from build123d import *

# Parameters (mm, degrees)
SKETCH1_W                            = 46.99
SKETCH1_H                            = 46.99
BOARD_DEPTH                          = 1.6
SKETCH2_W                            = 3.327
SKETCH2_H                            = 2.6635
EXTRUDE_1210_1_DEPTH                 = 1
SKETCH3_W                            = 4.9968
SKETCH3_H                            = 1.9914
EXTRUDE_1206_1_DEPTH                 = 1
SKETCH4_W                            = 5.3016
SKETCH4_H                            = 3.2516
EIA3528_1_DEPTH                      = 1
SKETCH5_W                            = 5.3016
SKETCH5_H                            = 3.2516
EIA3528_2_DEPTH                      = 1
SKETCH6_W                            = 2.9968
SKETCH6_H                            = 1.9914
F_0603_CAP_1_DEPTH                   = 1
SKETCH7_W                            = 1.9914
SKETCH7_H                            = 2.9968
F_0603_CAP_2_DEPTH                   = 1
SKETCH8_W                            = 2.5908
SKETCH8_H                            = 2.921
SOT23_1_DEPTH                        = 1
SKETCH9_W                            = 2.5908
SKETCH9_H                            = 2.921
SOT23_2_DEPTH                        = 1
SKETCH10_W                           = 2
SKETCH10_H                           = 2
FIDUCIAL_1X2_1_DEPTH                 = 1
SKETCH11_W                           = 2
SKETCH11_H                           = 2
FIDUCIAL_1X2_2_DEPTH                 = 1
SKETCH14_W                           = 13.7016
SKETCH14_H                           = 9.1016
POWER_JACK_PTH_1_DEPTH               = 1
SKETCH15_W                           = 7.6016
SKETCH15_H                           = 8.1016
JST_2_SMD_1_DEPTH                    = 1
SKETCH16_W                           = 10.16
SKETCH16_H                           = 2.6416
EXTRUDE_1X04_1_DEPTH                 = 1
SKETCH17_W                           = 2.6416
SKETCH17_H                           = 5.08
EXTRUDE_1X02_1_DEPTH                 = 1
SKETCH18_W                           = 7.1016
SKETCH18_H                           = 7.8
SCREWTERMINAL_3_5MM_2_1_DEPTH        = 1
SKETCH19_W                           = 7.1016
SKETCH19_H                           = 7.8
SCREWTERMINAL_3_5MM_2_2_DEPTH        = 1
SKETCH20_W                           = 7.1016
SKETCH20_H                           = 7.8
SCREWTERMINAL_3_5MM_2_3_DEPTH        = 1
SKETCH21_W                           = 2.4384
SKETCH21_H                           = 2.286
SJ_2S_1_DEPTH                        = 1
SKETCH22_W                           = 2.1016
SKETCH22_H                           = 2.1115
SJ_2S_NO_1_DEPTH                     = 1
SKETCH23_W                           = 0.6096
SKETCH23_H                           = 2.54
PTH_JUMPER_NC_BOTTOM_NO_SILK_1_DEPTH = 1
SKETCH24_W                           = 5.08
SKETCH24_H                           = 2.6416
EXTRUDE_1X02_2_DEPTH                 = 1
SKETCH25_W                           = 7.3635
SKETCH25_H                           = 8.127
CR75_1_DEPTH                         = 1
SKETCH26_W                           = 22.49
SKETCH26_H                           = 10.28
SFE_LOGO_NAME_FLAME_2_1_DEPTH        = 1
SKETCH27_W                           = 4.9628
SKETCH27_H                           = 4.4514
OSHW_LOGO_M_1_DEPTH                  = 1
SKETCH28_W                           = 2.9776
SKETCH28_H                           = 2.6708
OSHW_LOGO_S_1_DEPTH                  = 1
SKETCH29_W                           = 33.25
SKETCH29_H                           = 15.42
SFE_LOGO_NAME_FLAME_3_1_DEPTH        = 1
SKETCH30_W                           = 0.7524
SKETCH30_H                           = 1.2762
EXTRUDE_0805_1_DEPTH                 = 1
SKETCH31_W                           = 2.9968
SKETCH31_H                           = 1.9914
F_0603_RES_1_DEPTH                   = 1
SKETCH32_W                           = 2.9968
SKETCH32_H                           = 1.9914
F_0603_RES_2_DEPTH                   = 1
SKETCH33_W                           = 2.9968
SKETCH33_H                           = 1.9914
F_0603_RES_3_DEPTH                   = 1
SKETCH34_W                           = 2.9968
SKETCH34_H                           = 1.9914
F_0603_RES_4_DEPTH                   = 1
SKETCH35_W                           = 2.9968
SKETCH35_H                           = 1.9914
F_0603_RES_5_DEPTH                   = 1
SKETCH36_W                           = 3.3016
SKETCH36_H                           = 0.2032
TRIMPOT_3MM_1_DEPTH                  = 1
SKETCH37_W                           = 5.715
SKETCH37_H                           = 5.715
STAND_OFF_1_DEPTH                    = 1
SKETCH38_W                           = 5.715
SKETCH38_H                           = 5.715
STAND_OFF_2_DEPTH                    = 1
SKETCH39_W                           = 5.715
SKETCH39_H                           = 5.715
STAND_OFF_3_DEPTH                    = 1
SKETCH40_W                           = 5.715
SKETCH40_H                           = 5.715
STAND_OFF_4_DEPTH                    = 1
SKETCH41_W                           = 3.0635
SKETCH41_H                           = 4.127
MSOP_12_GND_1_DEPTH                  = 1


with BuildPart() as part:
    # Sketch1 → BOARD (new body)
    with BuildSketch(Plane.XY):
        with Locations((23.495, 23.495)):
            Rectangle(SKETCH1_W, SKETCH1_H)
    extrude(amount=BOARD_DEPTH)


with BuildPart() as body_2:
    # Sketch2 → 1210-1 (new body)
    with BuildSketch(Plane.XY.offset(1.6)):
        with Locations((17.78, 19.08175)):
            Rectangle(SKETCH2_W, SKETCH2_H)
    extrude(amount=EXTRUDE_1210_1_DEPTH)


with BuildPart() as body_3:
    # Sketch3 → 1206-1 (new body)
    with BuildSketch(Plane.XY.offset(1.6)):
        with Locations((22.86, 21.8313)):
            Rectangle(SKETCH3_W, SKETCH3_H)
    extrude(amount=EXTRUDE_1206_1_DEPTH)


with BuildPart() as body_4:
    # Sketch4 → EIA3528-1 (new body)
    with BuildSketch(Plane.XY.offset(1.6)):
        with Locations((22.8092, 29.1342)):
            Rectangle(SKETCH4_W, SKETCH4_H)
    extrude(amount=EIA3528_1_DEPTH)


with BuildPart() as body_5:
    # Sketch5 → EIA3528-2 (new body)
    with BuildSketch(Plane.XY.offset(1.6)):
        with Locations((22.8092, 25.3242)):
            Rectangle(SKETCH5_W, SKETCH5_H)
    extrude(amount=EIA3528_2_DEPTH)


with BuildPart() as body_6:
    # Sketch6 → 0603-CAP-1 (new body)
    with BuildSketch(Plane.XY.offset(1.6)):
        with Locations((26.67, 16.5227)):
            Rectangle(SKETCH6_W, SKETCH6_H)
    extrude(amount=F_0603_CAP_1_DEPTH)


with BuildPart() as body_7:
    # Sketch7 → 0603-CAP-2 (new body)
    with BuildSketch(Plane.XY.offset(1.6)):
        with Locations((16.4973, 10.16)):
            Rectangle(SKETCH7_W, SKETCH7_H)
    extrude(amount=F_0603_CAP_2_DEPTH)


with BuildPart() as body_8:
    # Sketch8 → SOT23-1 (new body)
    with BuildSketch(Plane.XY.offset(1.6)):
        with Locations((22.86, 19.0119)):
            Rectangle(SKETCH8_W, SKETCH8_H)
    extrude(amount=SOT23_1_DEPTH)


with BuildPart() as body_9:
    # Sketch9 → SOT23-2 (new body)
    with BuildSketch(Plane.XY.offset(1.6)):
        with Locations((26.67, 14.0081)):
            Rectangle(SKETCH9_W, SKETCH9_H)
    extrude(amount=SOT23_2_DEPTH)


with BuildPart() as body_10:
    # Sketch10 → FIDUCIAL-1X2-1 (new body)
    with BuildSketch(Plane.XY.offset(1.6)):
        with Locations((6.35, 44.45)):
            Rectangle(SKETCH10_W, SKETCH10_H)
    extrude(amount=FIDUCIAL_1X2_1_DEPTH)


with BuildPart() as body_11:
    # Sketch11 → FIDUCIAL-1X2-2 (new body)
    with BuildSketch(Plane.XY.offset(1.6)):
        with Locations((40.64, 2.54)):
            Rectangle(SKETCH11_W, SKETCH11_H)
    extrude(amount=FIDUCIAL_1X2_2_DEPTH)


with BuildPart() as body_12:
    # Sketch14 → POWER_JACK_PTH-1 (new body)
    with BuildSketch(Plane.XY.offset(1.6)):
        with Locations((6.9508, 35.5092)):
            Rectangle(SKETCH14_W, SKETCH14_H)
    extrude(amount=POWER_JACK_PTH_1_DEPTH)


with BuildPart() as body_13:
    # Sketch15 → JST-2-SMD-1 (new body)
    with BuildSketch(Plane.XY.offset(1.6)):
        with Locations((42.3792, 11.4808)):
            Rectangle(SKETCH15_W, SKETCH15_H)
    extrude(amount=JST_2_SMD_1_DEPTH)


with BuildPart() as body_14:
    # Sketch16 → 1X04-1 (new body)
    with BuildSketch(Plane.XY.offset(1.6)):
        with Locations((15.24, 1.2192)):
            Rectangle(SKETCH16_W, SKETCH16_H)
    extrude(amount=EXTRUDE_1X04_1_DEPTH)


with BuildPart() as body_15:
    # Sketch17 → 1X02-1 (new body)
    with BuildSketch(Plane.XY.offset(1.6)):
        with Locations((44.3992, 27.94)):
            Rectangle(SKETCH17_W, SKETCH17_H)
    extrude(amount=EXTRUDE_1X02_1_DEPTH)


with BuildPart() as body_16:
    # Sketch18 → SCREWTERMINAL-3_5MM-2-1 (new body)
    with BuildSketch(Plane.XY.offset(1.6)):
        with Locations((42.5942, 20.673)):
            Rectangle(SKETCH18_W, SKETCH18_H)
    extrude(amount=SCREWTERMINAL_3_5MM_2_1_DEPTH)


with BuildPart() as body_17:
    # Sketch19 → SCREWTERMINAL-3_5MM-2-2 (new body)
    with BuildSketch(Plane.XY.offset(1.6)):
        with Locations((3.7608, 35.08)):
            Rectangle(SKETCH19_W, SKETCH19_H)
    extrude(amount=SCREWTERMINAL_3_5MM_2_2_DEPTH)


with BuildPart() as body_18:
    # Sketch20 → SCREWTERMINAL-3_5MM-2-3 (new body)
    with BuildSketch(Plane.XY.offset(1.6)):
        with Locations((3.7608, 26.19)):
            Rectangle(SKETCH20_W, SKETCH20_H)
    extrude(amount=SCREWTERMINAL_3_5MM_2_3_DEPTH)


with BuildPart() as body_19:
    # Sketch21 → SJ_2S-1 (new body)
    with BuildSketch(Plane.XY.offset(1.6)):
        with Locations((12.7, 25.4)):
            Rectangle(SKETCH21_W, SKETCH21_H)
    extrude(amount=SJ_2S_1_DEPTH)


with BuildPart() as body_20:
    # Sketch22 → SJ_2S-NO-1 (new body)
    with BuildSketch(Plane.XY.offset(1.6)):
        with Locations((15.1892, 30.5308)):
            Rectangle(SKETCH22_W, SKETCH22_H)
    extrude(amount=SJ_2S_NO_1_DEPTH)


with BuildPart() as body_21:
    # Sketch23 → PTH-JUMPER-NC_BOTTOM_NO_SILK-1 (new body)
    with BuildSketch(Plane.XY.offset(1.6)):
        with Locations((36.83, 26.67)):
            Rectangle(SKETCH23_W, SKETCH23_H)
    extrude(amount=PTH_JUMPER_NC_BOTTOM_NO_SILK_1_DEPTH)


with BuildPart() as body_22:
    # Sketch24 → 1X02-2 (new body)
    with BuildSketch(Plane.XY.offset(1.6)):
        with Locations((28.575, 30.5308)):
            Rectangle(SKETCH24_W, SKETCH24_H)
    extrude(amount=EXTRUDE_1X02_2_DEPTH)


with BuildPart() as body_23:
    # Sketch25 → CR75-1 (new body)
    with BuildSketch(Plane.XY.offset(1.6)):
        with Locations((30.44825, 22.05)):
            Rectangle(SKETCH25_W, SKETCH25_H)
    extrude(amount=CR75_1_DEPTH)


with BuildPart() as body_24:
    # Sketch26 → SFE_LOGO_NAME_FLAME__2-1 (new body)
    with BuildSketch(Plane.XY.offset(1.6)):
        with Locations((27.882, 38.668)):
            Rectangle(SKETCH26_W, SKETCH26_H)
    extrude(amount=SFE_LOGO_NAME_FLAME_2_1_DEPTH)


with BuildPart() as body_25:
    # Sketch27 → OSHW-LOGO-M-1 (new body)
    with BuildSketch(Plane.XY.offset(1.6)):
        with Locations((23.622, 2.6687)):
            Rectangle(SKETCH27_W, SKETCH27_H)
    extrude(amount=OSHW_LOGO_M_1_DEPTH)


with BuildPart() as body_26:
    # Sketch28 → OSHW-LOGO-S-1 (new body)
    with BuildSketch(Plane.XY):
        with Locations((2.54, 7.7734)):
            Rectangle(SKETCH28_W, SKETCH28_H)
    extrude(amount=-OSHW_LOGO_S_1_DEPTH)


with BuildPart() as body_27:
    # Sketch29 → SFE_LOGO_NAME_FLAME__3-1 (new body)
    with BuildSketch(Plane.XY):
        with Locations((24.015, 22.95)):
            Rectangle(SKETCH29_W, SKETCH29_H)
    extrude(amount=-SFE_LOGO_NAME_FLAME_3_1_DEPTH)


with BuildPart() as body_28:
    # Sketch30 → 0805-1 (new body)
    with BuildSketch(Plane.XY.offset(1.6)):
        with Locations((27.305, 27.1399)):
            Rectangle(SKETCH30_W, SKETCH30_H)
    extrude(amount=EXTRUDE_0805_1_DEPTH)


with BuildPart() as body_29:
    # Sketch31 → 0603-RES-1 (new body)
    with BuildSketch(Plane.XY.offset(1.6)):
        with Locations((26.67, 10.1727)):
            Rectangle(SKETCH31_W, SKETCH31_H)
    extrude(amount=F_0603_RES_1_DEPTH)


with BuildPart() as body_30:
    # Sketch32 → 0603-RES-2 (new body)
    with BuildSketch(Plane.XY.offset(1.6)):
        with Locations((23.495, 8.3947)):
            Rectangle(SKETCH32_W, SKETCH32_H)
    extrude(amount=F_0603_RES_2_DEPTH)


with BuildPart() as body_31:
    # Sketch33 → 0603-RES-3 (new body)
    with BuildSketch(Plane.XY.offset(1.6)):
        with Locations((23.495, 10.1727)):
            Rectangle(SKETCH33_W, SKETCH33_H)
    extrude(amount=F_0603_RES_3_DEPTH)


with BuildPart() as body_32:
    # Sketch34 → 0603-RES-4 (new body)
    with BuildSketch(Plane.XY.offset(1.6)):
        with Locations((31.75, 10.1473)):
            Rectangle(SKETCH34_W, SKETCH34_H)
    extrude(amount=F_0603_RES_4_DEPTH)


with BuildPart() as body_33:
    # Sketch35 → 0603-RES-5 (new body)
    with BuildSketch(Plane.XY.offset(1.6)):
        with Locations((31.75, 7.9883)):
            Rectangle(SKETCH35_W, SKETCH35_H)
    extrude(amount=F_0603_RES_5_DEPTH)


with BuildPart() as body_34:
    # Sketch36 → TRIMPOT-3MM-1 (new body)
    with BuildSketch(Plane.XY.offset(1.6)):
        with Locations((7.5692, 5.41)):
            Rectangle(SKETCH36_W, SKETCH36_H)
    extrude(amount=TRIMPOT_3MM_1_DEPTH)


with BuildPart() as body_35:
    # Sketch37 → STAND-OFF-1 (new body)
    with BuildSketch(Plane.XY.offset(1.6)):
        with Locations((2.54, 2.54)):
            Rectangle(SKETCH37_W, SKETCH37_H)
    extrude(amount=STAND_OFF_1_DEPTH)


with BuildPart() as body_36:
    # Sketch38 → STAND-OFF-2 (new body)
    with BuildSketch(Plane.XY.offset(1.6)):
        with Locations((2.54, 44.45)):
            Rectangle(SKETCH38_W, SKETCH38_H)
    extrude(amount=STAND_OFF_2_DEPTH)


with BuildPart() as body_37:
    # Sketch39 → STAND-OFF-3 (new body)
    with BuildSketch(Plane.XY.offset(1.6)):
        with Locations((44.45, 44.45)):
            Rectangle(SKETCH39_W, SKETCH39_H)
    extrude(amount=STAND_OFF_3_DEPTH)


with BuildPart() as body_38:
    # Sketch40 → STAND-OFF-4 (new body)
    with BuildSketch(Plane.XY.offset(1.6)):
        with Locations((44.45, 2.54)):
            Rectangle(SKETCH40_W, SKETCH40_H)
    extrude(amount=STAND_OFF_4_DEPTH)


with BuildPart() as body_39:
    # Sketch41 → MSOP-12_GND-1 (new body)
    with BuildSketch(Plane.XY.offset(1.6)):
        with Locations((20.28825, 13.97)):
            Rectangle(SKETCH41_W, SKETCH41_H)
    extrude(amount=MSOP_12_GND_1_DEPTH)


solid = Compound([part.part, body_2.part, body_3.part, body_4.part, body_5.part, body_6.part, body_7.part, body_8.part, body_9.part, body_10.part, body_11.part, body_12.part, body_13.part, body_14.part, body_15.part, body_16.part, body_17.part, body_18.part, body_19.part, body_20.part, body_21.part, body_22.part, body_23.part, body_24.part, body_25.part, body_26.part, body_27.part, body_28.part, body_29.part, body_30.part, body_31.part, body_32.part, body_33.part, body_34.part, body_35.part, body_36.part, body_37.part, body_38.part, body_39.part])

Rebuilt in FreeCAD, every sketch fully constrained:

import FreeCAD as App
import Part
import Sketcher

V = App.Vector
Q = App.Units.Quantity


def add_polygon(sketch, points):
    """Adds a closed chain of lines whose ends are joined by coincident constraints."""
    first, n = sketch.GeometryCount, len(points)
    for a, b in zip(points, points[1:] + points[:1]):
        sketch.addGeometry(Part.LineSegment(App.Vector(*a, 0), App.Vector(*b, 0)), False)
    for i in range(n):
        sketch.addConstraint(Sketcher.Constraint("Coincident", first + i, 2, first + (i + 1) % n, 1))

doc = App.newDocument("Part")
params = doc.addObject("Spreadsheet::Sheet", "Params")
for row, (alias, value) in enumerate([
    ("sketch1_width", "1.85 in"),
    ("pad1_length", "1.6 mm"),
    ("pad2_length", "1 mm"),
    ("pad3_length", "1 mm"),
    ("pad4_length", "1 mm"),
    ("pad5_length", "1 mm"),
    ("pad6_length", "1 mm"),
    ("pad7_length", "1 mm"),
    ("sketch8_width", "0.102 in"),
    ("sketch8_height", "0.115 in"),
    ("pad8_length", "1 mm"),
    ("sketch9_width", "0.102 in"),
    ("sketch9_height", "0.115 in"),
    ("pad9_length", "1 mm"),
    ("pad10_length", "1 mm"),
    ("pad11_length", "1 mm"),
    ("pad12_length", "1 mm"),
    ("pad13_length", "1 mm"),
    ("sketch14_width", "0.4 in"),
    ("sketch14_height", "0.104 in"),
    ("pad14_length", "1 mm"),
    ("sketch15_height", "0.2 in"),
    ("sketch15_width", "0.104 in"),
    ("pad15_length", "1 mm"),
    ("pad16_length", "1 mm"),
    ("pad17_length", "1 mm"),
    ("pad18_length", "1 mm"),
    ("sketch19_height", "0.09 in"),
    ("sketch19_width", "0.096 in"),
    ("pad19_length", "1 mm"),
    ("pad20_length", "1 mm"),
    ("sketch21_height", "0.1 in"),
    ("sketch21_width", "0.024 in"),
    ("pad21_length", "1 mm"),
    ("sketch22_width", "0.2 in"),
    ("sketch22_height", "0.104 in"),
    ("pad22_length", "1 mm"),
    ("pad23_length", "1 mm"),
    ("pad24_length", "1 mm"),
    ("pad25_length", "1 mm"),
    ("pad26_length", "1 mm"),
    ("pad27_length", "1 mm"),
    ("pad28_length", "1 mm"),
    ("pad29_length", "1 mm"),
    ("pad30_length", "1 mm"),
    ("pad31_length", "1 mm"),
    ("pad32_length", "1 mm"),
    ("pad33_length", "1 mm"),
    ("sketch34_height", "0.008 in"),
    ("pad34_length", "1 mm"),
    ("sketch35_width", "0.225 in"),
    ("pad35_length", "1 mm"),
    ("sketch36_width", "0.225 in"),
    ("pad36_length", "1 mm"),
    ("sketch37_width", "0.225 in"),
    ("pad37_length", "1 mm"),
    ("sketch38_width", "0.225 in"),
    ("pad38_length", "1 mm"),
    ("pad39_length", "1 mm"),
], start=1):
    params.set(f"A{row}", alias)
    params.set(f"B{row}", "=" + value)
    params.setAlias(f"B{row}", alias)

body = doc.addObject("PartDesign::Body", "Body")

sketch1 = doc.addObject("Sketcher::SketchObject", "Sketch")
body.addObject(sketch1)
sketch1.AttachmentSupport = (doc.XY_Plane, [""])
sketch1.MapMode = "FlatFace"
add_polygon(sketch1, [(0, 46.99), (0, 0), (46.99, 0), (46.99, 46.99)])
sketch1.addConstraint([
    Sketcher.Constraint("Vertical", 0),
    Sketcher.Constraint("Horizontal", 1),
    Sketcher.Constraint("Vertical", 2),
    Sketcher.Constraint("Horizontal", 3),
    Sketcher.Constraint("Coincident", 0, 2, -1, 1),
    Sketcher.Constraint("Equal", 3, 0),
    Sketcher.Constraint("DistanceX", 1, 1, 1, 2, Q("1.85 in")),
])
sketch1.setExpression("Constraints[10]", "Params.sketch1_width")
pad1 = doc.addObject("PartDesign::Pad", "Pad")
body.addObject(pad1)
pad1.Profile = sketch1
pad1.setExpression("Length", "Params.pad1_length")
body2 = doc.addObject("PartDesign::Body", "Body001")

sketch2 = doc.addObject("Sketcher::SketchObject", "Sketch001")
body2.addObject(sketch2)
sketch2.AttachmentSupport = (doc.getObject("XY_Plane001"), [""])
sketch2.MapMode = "FlatFace"
sketch2.AttachmentOffset = App.Placement(V(0, 0, 1.6), App.Rotation())
add_polygon(sketch2, [(16.1165, 20.4135), (16.1165, 17.75), (19.4435, 17.75), (19.4435, 20.4135)])
sketch2.addConstraint([
    Sketcher.Constraint("Vertical", 0),
    Sketcher.Constraint("Horizontal", 1),
    Sketcher.Constraint("Vertical", 2),
    Sketcher.Constraint("Horizontal", 3),
    Sketcher.Constraint("DistanceX", 1, 1, 1, 2, Q("3.327 mm")),
    Sketcher.Constraint("DistanceY", 0, 2, 0, 1, Q("2.6635 mm")),
    Sketcher.Constraint("DistanceX", -1, 1, 0, 2, Q("16.1165 mm")),
    Sketcher.Constraint("DistanceY", -1, 1, 0, 2, Q("17.75 mm")),
])
pad2 = doc.addObject("PartDesign::Pad", "Pad001")
body2.addObject(pad2)
pad2.Profile = sketch2
pad2.setExpression("Length", "Params.pad2_length")
body3 = doc.addObject("PartDesign::Body", "Body002")

sketch3 = doc.addObject("Sketcher::SketchObject", "Sketch002")
body3.addObject(sketch3)
sketch3.AttachmentSupport = (doc.getObject("XY_Plane002"), [""])
sketch3.MapMode = "FlatFace"
sketch3.AttachmentOffset = App.Placement(V(0, 0, 1.6), App.Rotation())
add_polygon(sketch3, [(20.3616, 22.827), (20.3616, 20.8356), (25.3584, 20.8356), (25.3584, 22.827)])
sketch3.addConstraint([
    Sketcher.Constraint("Vertical", 0),
    Sketcher.Constraint("Horizontal", 1),
    Sketcher.Constraint("Vertical", 2),
    Sketcher.Constraint("Horizontal", 3),
    Sketcher.Constraint("DistanceX", 1, 1, 1, 2, Q("4.9968 mm")),
    Sketcher.Constraint("DistanceY", 0, 2, 0, 1, Q("1.9914 mm")),
    Sketcher.Constraint("DistanceX", -1, 1, 0, 2, Q("20.3616 mm")),
    Sketcher.Constraint("DistanceY", -1, 1, 0, 2, Q("20.8356 mm")),
])
pad3 = doc.addObject("PartDesign::Pad", "Pad002")
body3.addObject(pad3)
pad3.Profile = sketch3
pad3.setExpression("Length", "Params.pad3_length")
body4 = doc.addObject("PartDesign::Body", "Body003")

sketch4 = doc.addObject("Sketcher::SketchObject", "Sketch003")
body4.addObject(sketch4)
sketch4.AttachmentSupport = (doc.getObject("XY_Plane003"), [""])
sketch4.MapMode = "FlatFace"
sketch4.AttachmentOffset = App.Placement(V(0, 0, 1.6), App.Rotation())
add_polygon(sketch4, [(20.1584, 30.76), (20.1584, 27.5084), (25.46, 27.5084), (25.46, 30.76)])
sketch4.addConstraint([
    Sketcher.Constraint("Vertical", 0),
    Sketcher.Constraint("Horizontal", 1),
    Sketcher.Constraint("Vertical", 2),
    Sketcher.Constraint("Horizontal", 3),
    Sketcher.Constraint("DistanceX", 1, 1, 1, 2, Q("5.3016 mm")),
    Sketcher.Constraint("DistanceY", 0, 2, 0, 1, Q("3.2516 mm")),
    Sketcher.Constraint("DistanceX", -1, 1, 0, 2, Q("20.1584 mm")),
    Sketcher.Constraint("DistanceY", -1, 1, 0, 2, Q("27.5084 mm")),
])
pad4 = doc.addObject("PartDesign::Pad", "Pad003")
body4.addObject(pad4)
pad4.Profile = sketch4
pad4.setExpression("Length", "Params.pad4_length")
body5 = doc.addObject("PartDesign::Body", "Body004")

sketch5 = doc.addObject("Sketcher::SketchObject", "Sketch004")
body5.addObject(sketch5)
sketch5.AttachmentSupport = (doc.getObject("XY_Plane004"), [""])
sketch5.MapMode = "FlatFace"
sketch5.AttachmentOffset = App.Placement(V(0, 0, 1.6), App.Rotation())
add_polygon(sketch5, [(20.1584, 26.95), (20.1584, 23.6984), (25.46, 23.6984), (25.46, 26.95)])
sketch5.addConstraint([
    Sketcher.Constraint("Vertical", 0),
    Sketcher.Constraint("Horizontal", 1),
    Sketcher.Constraint("Vertical", 2),
    Sketcher.Constraint("Horizontal", 3),
    Sketcher.Constraint("DistanceX", 1, 1, 1, 2, Q("5.3016 mm")),
    Sketcher.Constraint("DistanceY", 0, 2, 0, 1, Q("3.2516 mm")),
    Sketcher.Constraint("DistanceX", -1, 1, 0, 2, Q("20.1584 mm")),
    Sketcher.Constraint("DistanceY", -1, 1, 0, 2, Q("23.6984 mm")),
])
pad5 = doc.addObject("PartDesign::Pad", "Pad004")
body5.addObject(pad5)
pad5.Profile = sketch5
pad5.setExpression("Length", "Params.pad5_length")
body6 = doc.addObject("PartDesign::Body", "Body005")

sketch6 = doc.addObject("Sketcher::SketchObject", "Sketch005")
body6.addObject(sketch6)
sketch6.AttachmentSupport = (doc.getObject("XY_Plane005"), [""])
sketch6.MapMode = "FlatFace"
sketch6.AttachmentOffset = App.Placement(V(0, 0, 1.6), App.Rotation())
add_polygon(sketch6, [(25.1716, 17.5184), (25.1716, 15.527), (28.1684, 15.527), (28.1684, 17.5184)])
sketch6.addConstraint([
    Sketcher.Constraint("Vertical", 0),
    Sketcher.Constraint("Horizontal", 1),
    Sketcher.Constraint("Vertical", 2),
    Sketcher.Constraint("Horizontal", 3),
    Sketcher.Constraint("DistanceX", 1, 1, 1, 2, Q("2.9968 mm")),
    Sketcher.Constraint("DistanceY", 0, 2, 0, 1, Q("1.9914 mm")),
    Sketcher.Constraint("DistanceX", -1, 1, 0, 2, Q("25.1716 mm")),
    Sketcher.Constraint("DistanceY", -1, 1, 0, 2, Q("15.527 mm")),
])
pad6 = doc.addObject("PartDesign::Pad", "Pad005")
body6.addObject(pad6)
pad6.Profile = sketch6
pad6.setExpression("Length", "Params.pad6_length")
body7 = doc.addObject("PartDesign::Body", "Body006")

sketch7 = doc.addObject("Sketcher::SketchObject", "Sketch006")
body7.addObject(sketch7)
sketch7.AttachmentSupport = (doc.getObject("XY_Plane006"), [""])
sketch7.MapMode = "FlatFace"
sketch7.AttachmentOffset = App.Placement(V(0, 0, 1.6), App.Rotation())
add_polygon(sketch7, [(15.5016, 11.6584), (15.5016, 8.6616), (17.493, 8.6616), (17.493, 11.6584)])
sketch7.addConstraint([
    Sketcher.Constraint("Vertical", 0),
    Sketcher.Constraint("Horizontal", 1),
    Sketcher.Constraint("Vertical", 2),
    Sketcher.Constraint("Horizontal", 3),
    Sketcher.Constraint("DistanceX", 1, 1, 1, 2, Q("1.9914 mm")),
    Sketcher.Constraint("DistanceY", 0, 2, 0, 1, Q("2.9968 mm")),
    Sketcher.Constraint("DistanceX", -1, 1, 0, 2, Q("15.5016 mm")),
    Sketcher.Constraint("DistanceY", -1, 1, 0, 2, Q("8.6616 mm")),
])
pad7 = doc.addObject("PartDesign::Pad", "Pad006")
body7.addObject(pad7)
pad7.Profile = sketch7
pad7.setExpression("Length", "Params.pad7_length")
body8 = doc.addObject("PartDesign::Body", "Body007")

sketch8 = doc.addObject("Sketcher::SketchObject", "Sketch007")
body8.addObject(sketch8)
sketch8.AttachmentSupport = (doc.getObject("XY_Plane007"), [""])
sketch8.MapMode = "FlatFace"
sketch8.AttachmentOffset = App.Placement(V(0, 0, 1.6), App.Rotation())
add_polygon(sketch8, [(21.5646, 20.4724), (21.5646, 17.5514), (24.1554, 17.5514), (24.1554, 20.4724)])
sketch8.addConstraint([
    Sketcher.Constraint("Vertical", 0),
    Sketcher.Constraint("Horizontal", 1),
    Sketcher.Constraint("Vertical", 2),
    Sketcher.Constraint("Horizontal", 3),
    Sketcher.Constraint("DistanceX", 1, 1, 1, 2, Q("0.102 in")),
    Sketcher.Constraint("DistanceY", 0, 2, 0, 1, Q("0.115 in")),
    Sketcher.Constraint("DistanceX", -1, 1, 0, 2, Q("0.849 in")),
    Sketcher.Constraint("DistanceY", -1, 1, 0, 2, Q("0.691 in")),
])
sketch8.setExpression("Constraints[8]", "Params.sketch8_width")
sketch8.setExpression("Constraints[9]", "Params.sketch8_height")
pad8 = doc.addObject("PartDesign::Pad", "Pad007")
body8.addObject(pad8)
pad8.Profile = sketch8
pad8.setExpression("Length", "Params.pad8_length")
body9 = doc.addObject("PartDesign::Body", "Body008")

sketch9 = doc.addObject("Sketcher::SketchObject", "Sketch008")
body9.addObject(sketch9)
sketch9.AttachmentSupport = (doc.getObject("XY_Plane008"), [""])
sketch9.MapMode = "FlatFace"
sketch9.AttachmentOffset = App.Placement(V(0, 0, 1.6), App.Rotation())
add_polygon(sketch9, [(25.3746, 15.4686), (25.3746, 12.5476), (27.9654, 12.5476), (27.9654, 15.4686)])
sketch9.addConstraint([
    Sketcher.Constraint("Vertical", 0),
    Sketcher.Constraint("Horizontal", 1),
    Sketcher.Constraint("Vertical", 2),
    Sketcher.Constraint("Horizontal", 3),
    Sketcher.Constraint("DistanceX", 1, 1, 1, 2, Q("0.102 in")),
    Sketcher.Constraint("DistanceY", 0, 2, 0, 1, Q("0.115 in")),
    Sketcher.Constraint("DistanceX", -1, 1, 0, 2, Q("0.999 in")),
    Sketcher.Constraint("DistanceY", -1, 1, 0, 2, Q("0.494 in")),
])
sketch9.setExpression("Constraints[8]", "Params.sketch9_width")
sketch9.setExpression("Constraints[9]", "Params.sketch9_height")
pad9 = doc.addObject("PartDesign::Pad", "Pad008")
body9.addObject(pad9)
pad9.Profile = sketch9
pad9.setExpression("Length", "Params.pad9_length")
body10 = doc.addObject("PartDesign::Body", "Body009")

sketch10 = doc.addObject("Sketcher::SketchObject", "Sketch009")
body10.addObject(sketch10)
sketch10.AttachmentSupport = (doc.getObject("XY_Plane009"), [""])
sketch10.MapMode = "FlatFace"
sketch10.AttachmentOffset = App.Placement(V(0, 0, 1.6), App.Rotation())
add_polygon(sketch10, [(5.35, 45.45), (5.35, 43.45), (7.35, 43.45), (7.35, 45.45)])
sketch10.addConstraint([
    Sketcher.Constraint("Vertical", 0),
    Sketcher.Constraint("Horizontal", 1),
    Sketcher.Constraint("Vertical", 2),
    Sketcher.Constraint("Horizontal", 3),
    Sketcher.Constraint("Equal", 3, 0),
    Sketcher.Constraint("DistanceX", 1, 1, 1, 2, Q("2 mm")),
    Sketcher.Constraint("DistanceX", -1, 1, 0, 2, Q("5.35 mm")),
    Sketcher.Constraint("DistanceY", -1, 1, 0, 2, Q("43.45 mm")),
])
pad10 = doc.addObject("PartDesign::Pad", "Pad009")
body10.addObject(pad10)
pad10.Profile = sketch10
pad10.setExpression("Length", "Params.pad10_length")
body11 = doc.addObject("PartDesign::Body", "Body010")

sketch11 = doc.addObject("Sketcher::SketchObject", "Sketch010")
body11.addObject(sketch11)
sketch11.AttachmentSupport = (doc.getObject("XY_Plane010"), [""])
sketch11.MapMode = "FlatFace"
sketch11.AttachmentOffset = App.Placement(V(0, 0, 1.6), App.Rotation())
add_polygon(sketch11, [(39.64, 3.54), (39.64, 1.54), (41.64, 1.54), (41.64, 3.54)])
sketch11.addConstraint([
    Sketcher.Constraint("Vertical", 0),
    Sketcher.Constraint("Horizontal", 1),
    Sketcher.Constraint("Vertical", 2),
    Sketcher.Constraint("Horizontal", 3),
    Sketcher.Constraint("Equal", 3, 0),
    Sketcher.Constraint("DistanceX", 1, 1, 1, 2, Q("2 mm")),
    Sketcher.Constraint("DistanceX", -1, 1, 0, 2, Q("39.64 mm")),
    Sketcher.Constraint("DistanceY", -1, 1, 0, 2, Q("1.54 mm")),
])
pad11 = doc.addObject("PartDesign::Pad", "Pad010")
body11.addObject(pad11)
pad11.Profile = sketch11
pad11.setExpression("Length", "Params.pad11_length")
body12 = doc.addObject("PartDesign::Body", "Body011")

sketch12 = doc.addObject("Sketcher::SketchObject", "Sketch011")
body12.addObject(sketch12)
sketch12.AttachmentSupport = (doc.getObject("XY_Plane011"), [""])
sketch12.MapMode = "FlatFace"
sketch12.AttachmentOffset = App.Placement(V(0, 0, 1.6), App.Rotation())
add_polygon(sketch12, [(0.1, 40.06), (0.1, 30.9584), (13.8016, 30.9584), (13.8016, 40.06)])
sketch12.addConstraint([
    Sketcher.Constraint("Vertical", 0),
    Sketcher.Constraint("Horizontal", 1),
    Sketcher.Constraint("Vertical", 2),
    Sketcher.Constraint("Horizontal", 3),
    Sketcher.Constraint("DistanceX", 1, 1, 1, 2, Q("13.7016 mm")),
    Sketcher.Constraint("DistanceY", 0, 2, 0, 1, Q("9.1016 mm")),
    Sketcher.Constraint("DistanceX", -1, 1, 0, 2, Q("0.1 mm")),
    Sketcher.Constraint("DistanceY", -1, 1, 0, 2, Q("30.9584 mm")),
])
pad12 = doc.addObject("PartDesign::Pad", "Pad011")
body12.addObject(pad12)
pad12.Profile = sketch12
pad12.setExpression("Length", "Params.pad12_length")
body13 = doc.addObject("PartDesign::Body", "Body012")

sketch13 = doc.addObject("Sketcher::SketchObject", "Sketch012")
body13.addObject(sketch13)
sketch13.AttachmentSupport = (doc.getObject("XY_Plane012"), [""])
sketch13.MapMode = "FlatFace"
sketch13.AttachmentOffset = App.Placement(V(0, 0, 1.6), App.Rotation())
add_polygon(sketch13, [(38.5784, 15.5316), (38.5784, 7.43), (46.18, 7.43), (46.18, 15.5316)])
sketch13.addConstraint([
    Sketcher.Constraint("Vertical", 0),
    Sketcher.Constraint("Horizontal", 1),
    Sketcher.Constraint("Vertical", 2),
    Sketcher.Constraint("Horizontal", 3),
    Sketcher.Constraint("DistanceX", 1, 1, 1, 2, Q("7.6016 mm")),
    Sketcher.Constraint("DistanceY", 0, 2, 0, 1, Q("8.1016 mm")),
    Sketcher.Constraint("DistanceX", -1, 1, 0, 2, Q("38.5784 mm")),
    Sketcher.Constraint("DistanceY", -1, 1, 0, 2, Q("7.43 mm")),
])
pad13 = doc.addObject("PartDesign::Pad", "Pad012")
body13.addObject(pad13)
pad13.Profile = sketch13
pad13.setExpression("Length", "Params.pad13_length")
body14 = doc.addObject("PartDesign::Body", "Body013")

sketch14 = doc.addObject("Sketcher::SketchObject", "Sketch013")
body14.addObject(sketch14)
sketch14.AttachmentSupport = (doc.getObject("XY_Plane013"), [""])
sketch14.MapMode = "FlatFace"
sketch14.AttachmentOffset = App.Placement(V(0, 0, 1.6), App.Rotation())
add_polygon(sketch14, [(10.16, 2.54), (10.16, -0.1016), (20.32, -0.1016), (20.32, 2.54)])
sketch14.addConstraint([
    Sketcher.Constraint("Vertical", 0),
    Sketcher.Constraint("Horizontal", 1),
    Sketcher.Constraint("Vertical", 2),
    Sketcher.Constraint("Horizontal", 3),
    Sketcher.Constraint("DistanceX", 1, 1, 1, 2, Q("0.4 in")),
    Sketcher.Constraint("DistanceX", -1, 1, 0, 2, Q("0.4 in")),
    Sketcher.Constraint("DistanceY", -1, 1, 2, 2, Q("0.1 in")),
    Sketcher.Constraint("DistanceY", 0, 2, 0, 1, Q("0.104 in")),
])
sketch14.setExpression("Constraints[8]", "Params.sketch14_width")
sketch14.setExpression("Constraints[11]", "Params.sketch14_height")
pad14 = doc.addObject("PartDesign::Pad", "Pad013")
body14.addObject(pad14)
pad14.Profile = sketch14
pad14.setExpression("Length", "Params.pad14_length")
body15 = doc.addObject("PartDesign::Body", "Body014")

sketch15 = doc.addObject("Sketcher::SketchObject", "Sketch014")
body15.addObject(sketch15)
sketch15.AttachmentSupport = (doc.getObject("XY_Plane014"), [""])
sketch15.MapMode = "FlatFace"
sketch15.AttachmentOffset = App.Placement(V(0, 0, 1.6), App.Rotation())
add_polygon(sketch15, [(43.0784, 30.48), (43.0784, 25.4), (45.72, 25.4), (45.72, 30.48)])
sketch15.addConstraint([
    Sketcher.Constraint("Vertical", 0),
    Sketcher.Constraint("Horizontal", 1),
    Sketcher.Constraint("Vertical", 2),
    Sketcher.Constraint("Horizontal", 3),
    Sketcher.Constraint("DistanceY", 0, 2, 0, 1, Q("0.2 in")),
    Sketcher.Constraint("DistanceY", -1, 1, 0, 2, Q("1 in")),
    Sketcher.Constraint("DistanceX", -1, 1, 1, 2, Q("1.8 in")),
    Sketcher.Constraint("DistanceX", 1, 1, 1, 2, Q("0.104 in")),
])
sketch15.setExpression("Constraints[8]", "Params.sketch15_height")
sketch15.setExpression("Constraints[11]", "Params.sketch15_width")
pad15 = doc.addObject("PartDesign::Pad", "Pad014")
body15.addObject(pad15)
pad15.Profile = sketch15
pad15.setExpression("Length", "Params.pad15_length")
body16 = doc.addObject("PartDesign::Body", "Body015")

sketch16 = doc.addObject("Sketcher::SketchObject", "Sketch015")
body16.addObject(sketch16)
sketch16.AttachmentSupport = (doc.getObject("XY_Plane015"), [""])
sketch16.MapMode = "FlatFace"
sketch16.AttachmentOffset = App.Placement(V(0, 0, 1.6), App.Rotation())
add_polygon(sketch16, [(39.0434, 24.573), (39.0434, 16.773), (46.145, 16.773), (46.145, 24.573)])
sketch16.addConstraint([
    Sketcher.Constraint("Vertical", 0),
    Sketcher.Constraint("Horizontal", 1),
    Sketcher.Constraint("Vertical", 2),
    Sketcher.Constraint("Horizontal", 3),
    Sketcher.Constraint("DistanceX", 1, 1, 1, 2, Q("7.1016 mm")),
    Sketcher.Constraint("DistanceY", 0, 2, 0, 1, Q("7.8 mm")),
    Sketcher.Constraint("DistanceX", -1, 1, 0, 2, Q("39.0434 mm")),
    Sketcher.Constraint("DistanceY", -1, 1, 0, 2, Q("16.773 mm")),
])
pad16 = doc.addObject("PartDesign::Pad", "Pad015")
body16.addObject(pad16)
pad16.Profile = sketch16
pad16.setExpression("Length", "Params.pad16_length")
body17 = doc.addObject("PartDesign::Body", "Body016")

sketch17 = doc.addObject("Sketcher::SketchObject", "Sketch016")
body17.addObject(sketch17)
sketch17.AttachmentSupport = (doc.getObject("XY_Plane016"), [""])
sketch17.MapMode = "FlatFace"
sketch17.AttachmentOffset = App.Placement(V(0, 0, 1.6), App.Rotation())
add_polygon(sketch17, [(0.21, 38.98), (0.21, 31.18), (7.3116, 31.18), (7.3116, 38.98)])
sketch17.addConstraint([
    Sketcher.Constraint("Vertical", 0),
    Sketcher.Constraint("Horizontal", 1),
    Sketcher.Constraint("Vertical", 2),
    Sketcher.Constraint("Horizontal", 3),
    Sketcher.Constraint("DistanceX", 1, 1, 1, 2, Q("7.1016 mm")),
    Sketcher.Constraint("DistanceY", 0, 2, 0, 1, Q("7.8 mm")),
    Sketcher.Constraint("DistanceX", -1, 1, 0, 2, Q("0.21 mm")),
    Sketcher.Constraint("DistanceY", -1, 1, 0, 2, Q("31.18 mm")),
])
pad17 = doc.addObject("PartDesign::Pad", "Pad016")
body17.addObject(pad17)
pad17.Profile = sketch17
pad17.setExpression("Length", "Params.pad17_length")
body18 = doc.addObject("PartDesign::Body", "Body017")

sketch18 = doc.addObject("Sketcher::SketchObject", "Sketch017")
body18.addObject(sketch18)
sketch18.AttachmentSupport = (doc.getObject("XY_Plane017"), [""])
sketch18.MapMode = "FlatFace"
sketch18.AttachmentOffset = App.Placement(V(0, 0, 1.6), App.Rotation())
add_polygon(sketch18, [(0.21, 30.09), (0.21, 22.29), (7.3116, 22.29), (7.3116, 30.09)])
sketch18.addConstraint([
    Sketcher.Constraint("Vertical", 0),
    Sketcher.Constraint("Horizontal", 1),
    Sketcher.Constraint("Vertical", 2),
    Sketcher.Constraint("Horizontal", 3),
    Sketcher.Constraint("DistanceX", 1, 1, 1, 2, Q("7.1016 mm")),
    Sketcher.Constraint("DistanceY", 0, 2, 0, 1, Q("7.8 mm")),
    Sketcher.Constraint("DistanceX", -1, 1, 0, 2, Q("0.21 mm")),
    Sketcher.Constraint("DistanceY", -1, 1, 0, 2, Q("22.29 mm")),
])
pad18 = doc.addObject("PartDesign::Pad", "Pad017")
body18.addObject(pad18)
pad18.Profile = sketch18
pad18.setExpression("Length", "Params.pad18_length")
body19 = doc.addObject("PartDesign::Body", "Body018")

sketch19 = doc.addObject("Sketcher::SketchObject", "Sketch018")
body19.addObject(sketch19)
sketch19.AttachmentSupport = (doc.getObject("XY_Plane018"), [""])
sketch19.MapMode = "FlatFace"
sketch19.AttachmentOffset = App.Placement(V(0, 0, 1.6), App.Rotation())
add_polygon(sketch19, [(11.4808, 26.543), (11.4808, 24.257), (13.9192, 24.257), (13.9192, 26.543)])
sketch19.addConstraint([
    Sketcher.Constraint("Vertical", 0),
    Sketcher.Constraint("Horizontal", 1),
    Sketcher.Constraint("Vertical", 2),
    Sketcher.Constraint("Horizontal", 3),
    Sketcher.Constraint("DistanceY", 0, 2, 0, 1, Q("0.09 in")),
    Sketcher.Constraint("DistanceX", 1, 1, 1, 2, Q("0.096 in")),
    Sketcher.Constraint("DistanceX", -1, 1, 0, 2, Q("0.452 in")),
    Sketcher.Constraint("DistanceY", -1, 1, 0, 2, Q("0.955 in")),
])
sketch19.setExpression("Constraints[8]", "Params.sketch19_height")
sketch19.setExpression("Constraints[9]", "Params.sketch19_width")
pad19 = doc.addObject("PartDesign::Pad", "Pad018")
body19.addObject(pad19)
pad19.Profile = sketch19
pad19.setExpression("Length", "Params.pad19_length")
body20 = doc.addObject("PartDesign::Body", "Body019")

sketch20 = doc.addObject("Sketcher::SketchObject", "Sketch019")
body20.addObject(sketch20)
sketch20.AttachmentSupport = (doc.getObject("XY_Plane019"), [""])
sketch20.MapMode = "FlatFace"
sketch20.AttachmentOffset = App.Placement(V(0, 0, 1.6), App.Rotation())
add_polygon(sketch20, [(14.1384, 31.58655), (14.1384, 29.47505), (16.24, 29.47505), (16.24, 31.58655)])
sketch20.addConstraint([
    Sketcher.Constraint("Vertical", 0),
    Sketcher.Constraint("Horizontal", 1),
    Sketcher.Constraint("Vertical", 2),
    Sketcher.Constraint("Horizontal", 3),
    Sketcher.Constraint("DistanceX", 1, 1, 1, 2, Q("2.1016 mm")),
    Sketcher.Constraint("DistanceY", 0, 2, 0, 1, Q("2.1115 mm")),
    Sketcher.Constraint("DistanceX", -1, 1, 0, 2, Q("14.1384 mm")),
    Sketcher.Constraint("DistanceY", -1, 1, 0, 2, Q("29.47505 mm")),
])
pad20 = doc.addObject("PartDesign::Pad", "Pad019")
body20.addObject(pad20)
pad20.Profile = sketch20
pad20.setExpression("Length", "Params.pad20_length")
body21 = doc.addObject("PartDesign::Body", "Body020")

sketch21 = doc.addObject("Sketcher::SketchObject", "Sketch020")
body21.addObject(sketch21)
sketch21.AttachmentSupport = (doc.getObject("XY_Plane020"), [""])
sketch21.MapMode = "FlatFace"
sketch21.AttachmentOffset = App.Placement(V(0, 0, 1.6), App.Rotation())
add_polygon(sketch21, [(36.5252, 27.94), (36.5252, 25.4), (37.1348, 25.4), (37.1348, 27.94)])
sketch21.addConstraint([
    Sketcher.Constraint("Vertical", 0),
    Sketcher.Constraint("Horizontal", 1),
    Sketcher.Constraint("Vertical", 2),
    Sketcher.Constraint("Horizontal", 3),
    Sketcher.Constraint("DistanceY", 0, 2, 0, 1, Q("0.1 in")),
    Sketcher.Constraint("DistanceY", -1, 1, 0, 2, Q("1 in")),
    Sketcher.Constraint("DistanceX", 1, 1, 1, 2, Q("0.024 in")),
    Sketcher.Constraint("DistanceX", -1, 1, 0, 2, Q("1.438 in")),
])
sketch21.setExpression("Constraints[8]", "Params.sketch21_height")
sketch21.setExpression("Constraints[10]", "Params.sketch21_width")
pad21 = doc.addObject("PartDesign::Pad", "Pad020")
body21.addObject(pad21)
pad21.Profile = sketch21
pad21.setExpression("Length", "Params.pad21_length")
body22 = doc.addObject("PartDesign::Body", "Body021")

sketch22 = doc.addObject("Sketcher::SketchObject", "Sketch021")
body22.addObject(sketch22)
sketch22.AttachmentSupport = (doc.getObject("XY_Plane021"), [""])
sketch22.MapMode = "FlatFace"
sketch22.AttachmentOffset = App.Placement(V(0, 0, 1.6), App.Rotation())
add_polygon(sketch22, [(26.035, 31.8516), (26.035, 29.21), (31.115, 29.21), (31.115, 31.8516)])
sketch22.addConstraint([
    Sketcher.Constraint("Vertical", 0),
    Sketcher.Constraint("Horizontal", 1),
    Sketcher.Constraint("Vertical", 2),
    Sketcher.Constraint("Horizontal", 3),
    Sketcher.Constraint("DistanceX", 1, 1, 1, 2, Q("0.2 in")),
    Sketcher.Constraint("DistanceY", 0, 2, 0, 1, Q("0.104 in")),
    Sketcher.Constraint("DistanceY", -1, 1, 0, 2, Q("1.15 in")),
    Sketcher.Constraint("DistanceX", -1, 1, 0, 2, Q("1.025 in")),
])
sketch22.setExpression("Constraints[8]", "Params.sketch22_width")
sketch22.setExpression("Constraints[9]", "Params.sketch22_height")
pad22 = doc.addObject("PartDesign::Pad", "Pad021")
body22.addObject(pad22)
pad22.Profile = sketch22
pad22.setExpression("Length", "Params.pad22_length")
body23 = doc.addObject("PartDesign::Body", "Body022")

sketch23 = doc.addObject("Sketcher::SketchObject", "Sketch022")
body23.addObject(sketch23)
sketch23.AttachmentSupport = (doc.getObject("XY_Plane022"), [""])
sketch23.MapMode = "FlatFace"
sketch23.AttachmentOffset = App.Placement(V(0, 0, 1.6), App.Rotation())
add_polygon(sketch23, [(26.7665, 26.1135), (26.7665, 17.9865), (34.13, 17.9865), (34.13, 26.1135)])
sketch23.addConstraint([
    Sketcher.Constraint("Vertical", 0),
    Sketcher.Constraint("Horizontal", 1),
    Sketcher.Constraint("Vertical", 2),
    Sketcher.Constraint("Horizontal", 3),
    Sketcher.Constraint("DistanceX", 1, 1, 1, 2, Q("7.3635 mm")),
    Sketcher.Constraint("DistanceY", 0, 2, 0, 1, Q("8.127 mm")),
    Sketcher.Constraint("DistanceX", -1, 1, 0, 2, Q("26.7665 mm")),
    Sketcher.Constraint("DistanceY", -1, 1, 0, 2, Q("17.9865 mm")),
])
pad23 = doc.addObject("PartDesign::Pad", "Pad022")
body23.addObject(pad23)
pad23.Profile = sketch23
pad23.setExpression("Length", "Params.pad23_length")
body24 = doc.addObject("PartDesign::Body", "Body023")

sketch24 = doc.addObject("Sketcher::SketchObject", "Sketch023")
body24.addObject(sketch24)
sketch24.AttachmentSupport = (doc.getObject("XY_Plane023"), [""])
sketch24.MapMode = "FlatFace"
sketch24.AttachmentOffset = App.Placement(V(0, 0, 1.6), App.Rotation())
add_polygon(sketch24, [(16.637, 43.808), (16.637, 33.528), (39.127, 33.528), (39.127, 43.808)])
sketch24.addConstraint([
    Sketcher.Constraint("Vertical", 0),
    Sketcher.Constraint("Horizontal", 1),
    Sketcher.Constraint("Vertical", 2),
    Sketcher.Constraint("Horizontal", 3),
    Sketcher.Constraint("DistanceY", -1, 1, 0, 2, Q("1.32 in")),
    Sketcher.Constraint("DistanceX", -1, 1, 0, 2, Q("0.655 in")),
    Sketcher.Constraint("DistanceX", 1, 1, 1, 2, Q("22.49 mm")),
    Sketcher.Constraint("DistanceY", 0, 2, 0, 1, Q("10.28 mm")),
])
pad24 = doc.addObject("PartDesign::Pad", "Pad023")
body24.addObject(pad24)
pad24.Profile = sketch24
pad24.setExpression("Length", "Params.pad24_length")
body25 = doc.addObject("PartDesign::Body", "Body024")

sketch25 = doc.addObject("Sketcher::SketchObject", "Sketch024")
body25.addObject(sketch25)
sketch25.AttachmentSupport = (doc.getObject("XY_Plane024"), [""])
sketch25.MapMode = "FlatFace"
sketch25.AttachmentOffset = App.Placement(V(0, 0, 1.6), App.Rotation())
add_polygon(sketch25, [(21.1406, 4.8944), (21.1406, 0.443), (26.1034, 0.443), (26.1034, 4.8944)])
sketch25.addConstraint([
    Sketcher.Constraint("Vertical", 0),
    Sketcher.Constraint("Horizontal", 1),
    Sketcher.Constraint("Vertical", 2),
    Sketcher.Constraint("Horizontal", 3),
    Sketcher.Constraint("DistanceX", 1, 1, 1, 2, Q("4.9628 mm")),
    Sketcher.Constraint("DistanceY", 0, 2, 0, 1, Q("4.4514 mm")),
    Sketcher.Constraint("DistanceX", -1, 1, 0, 2, Q("21.1406 mm")),
    Sketcher.Constraint("DistanceY", -1, 1, 0, 2, Q("0.443 mm")),
])
pad25 = doc.addObject("PartDesign::Pad", "Pad024")
body25.addObject(pad25)
pad25.Profile = sketch25
pad25.setExpression("Length", "Params.pad25_length")
body26 = doc.addObject("PartDesign::Body", "Body025")

sketch26 = doc.addObject("Sketcher::SketchObject", "Sketch025")
body26.addObject(sketch26)
sketch26.AttachmentSupport = (doc.getObject("XY_Plane025"), [""])
sketch26.MapMode = "FlatFace"
add_polygon(sketch26, [(1.0512, 9.1088), (1.0512, 6.438), (4.0288, 6.438), (4.0288, 9.1088)])
sketch26.addConstraint([
    Sketcher.Constraint("Vertical", 0),
    Sketcher.Constraint("Horizontal", 1),
    Sketcher.Constraint("Vertical", 2),
    Sketcher.Constraint("Horizontal", 3),
    Sketcher.Constraint("DistanceX", 1, 1, 1, 2, Q("2.9776 mm")),
    Sketcher.Constraint("DistanceY", 0, 2, 0, 1, Q("2.6708 mm")),
    Sketcher.Constraint("DistanceX", -1, 1, 0, 2, Q("1.0512 mm")),
    Sketcher.Constraint("DistanceY", -1, 1, 0, 2, Q("6.438 mm")),
])
pad26 = doc.addObject("PartDesign::Pad", "Pad025")
body26.addObject(pad26)
pad26.Profile = sketch26
pad26.setExpression("Length", "Params.pad26_length")
pad26.Reversed = True
body27 = doc.addObject("PartDesign::Body", "Body026")

sketch27 = doc.addObject("Sketcher::SketchObject", "Sketch026")
body27.addObject(sketch27)
sketch27.AttachmentSupport = (doc.getObject("XY_Plane026"), [""])
sketch27.MapMode = "FlatFace"
add_polygon(sketch27, [(7.39, 30.66), (7.39, 15.24), (40.64, 15.24), (40.64, 30.66)])
sketch27.addConstraint([
    Sketcher.Constraint("Vertical", 0),
    Sketcher.Constraint("Horizontal", 1),
    Sketcher.Constraint("Vertical", 2),
    Sketcher.Constraint("Horizontal", 3),
    Sketcher.Constraint("DistanceY", -1, 1, 0, 2, Q("0.6 in")),
    Sketcher.Constraint("DistanceX", -1, 1, 1, 2, Q("1.6 in")),
    Sketcher.Constraint("DistanceX", 1, 1, 1, 2, Q("33.25 mm")),
    Sketcher.Constraint("DistanceY", 0, 2, 0, 1, Q("15.42 mm")),
])
pad27 = doc.addObject("PartDesign::Pad", "Pad026")
body27.addObject(pad27)
pad27.Profile = sketch27
pad27.setExpression("Length", "Params.pad27_length")
pad27.Reversed = True
body28 = doc.addObject("PartDesign::Body", "Body027")

sketch28 = doc.addObject("Sketcher::SketchObject", "Sketch027")
body28.addObject(sketch28)
sketch28.AttachmentSupport = (doc.getObject("XY_Plane027"), [""])
sketch28.MapMode = "FlatFace"
sketch28.AttachmentOffset = App.Placement(V(0, 0, 1.6), App.Rotation())
add_polygon(sketch28, [(26.9288, 27.778), (26.9288, 26.5018), (27.6812, 26.5018), (27.6812, 27.778)])
sketch28.addConstraint([
    Sketcher.Constraint("Vertical", 0),
    Sketcher.Constraint("Horizontal", 1),
    Sketcher.Constraint("Vertical", 2),
    Sketcher.Constraint("Horizontal", 3),
    Sketcher.Constraint("DistanceX", 1, 1, 1, 2, Q("0.7524 mm")),
    Sketcher.Constraint("DistanceY", 0, 2, 0, 1, Q("1.2762 mm")),
    Sketcher.Constraint("DistanceX", -1, 1, 0, 2, Q("26.9288 mm")),
    Sketcher.Constraint("DistanceY", -1, 1, 0, 2, Q("26.5018 mm")),
])
pad28 = doc.addObject("PartDesign::Pad", "Pad027")
body28.addObject(pad28)
pad28.Profile = sketch28
pad28.setExpression("Length", "Params.pad28_length")
body29 = doc.addObject("PartDesign::Body", "Body028")

sketch29 = doc.addObject("Sketcher::SketchObject", "Sketch028")
body29.addObject(sketch29)
sketch29.AttachmentSupport = (doc.getObject("XY_Plane028"), [""])
sketch29.MapMode = "FlatFace"
sketch29.AttachmentOffset = App.Placement(V(0, 0, 1.6), App.Rotation())
add_polygon(sketch29, [(25.1716, 11.1684), (25.1716, 9.177), (28.1684, 9.177), (28.1684, 11.1684)])
sketch29.addConstraint([
    Sketcher.Constraint("Vertical", 0),
    Sketcher.Constraint("Horizontal", 1),
    Sketcher.Constraint("Vertical", 2),
    Sketcher.Constraint("Horizontal", 3),
    Sketcher.Constraint("DistanceX", 1, 1, 1, 2, Q("2.9968 mm")),
    Sketcher.Constraint("DistanceY", 0, 2, 0, 1, Q("1.9914 mm")),
    Sketcher.Constraint("DistanceX", -1, 1, 0, 2, Q("25.1716 mm")),
    Sketcher.Constraint("DistanceY", -1, 1, 0, 2, Q("9.177 mm")),
])
pad29 = doc.addObject("PartDesign::Pad", "Pad028")
body29.addObject(pad29)
pad29.Profile = sketch29
pad29.setExpression("Length", "Params.pad29_length")
body30 = doc.addObject("PartDesign::Body", "Body029")

sketch30 = doc.addObject("Sketcher::SketchObject", "Sketch029")
body30.addObject(sketch30)
sketch30.AttachmentSupport = (doc.getObject("XY_Plane029"), [""])
sketch30.MapMode = "FlatFace"
sketch30.AttachmentOffset = App.Placement(V(0, 0, 1.6), App.Rotation())
add_polygon(sketch30, [(21.9966, 9.3904), (21.9966, 7.399), (24.9934, 7.399), (24.9934, 9.3904)])
sketch30.addConstraint([
    Sketcher.Constraint("Vertical", 0),
    Sketcher.Constraint("Horizontal", 1),
    Sketcher.Constraint("Vertical", 2),
    Sketcher.Constraint("Horizontal", 3),
    Sketcher.Constraint("DistanceX", 1, 1, 1, 2, Q("2.9968 mm")),
    Sketcher.Constraint("DistanceY", 0, 2, 0, 1, Q("1.9914 mm")),
    Sketcher.Constraint("DistanceX", -1, 1, 0, 2, Q("21.9966 mm")),
    Sketcher.Constraint("DistanceY", -1, 1, 0, 2, Q("7.399 mm")),
])
pad30 = doc.addObject("PartDesign::Pad", "Pad029")
body30.addObject(pad30)
pad30.Profile = sketch30
pad30.setExpression("Length", "Params.pad30_length")
body31 = doc.addObject("PartDesign::Body", "Body030")

sketch31 = doc.addObject("Sketcher::SketchObject", "Sketch030")
body31.addObject(sketch31)
sketch31.AttachmentSupport = (doc.getObject("XY_Plane030"), [""])
sketch31.MapMode = "FlatFace"
sketch31.AttachmentOffset = App.Placement(V(0, 0, 1.6), App.Rotation())
add_polygon(sketch31, [(21.9966, 11.1684), (21.9966, 9.177), (24.9934, 9.177), (24.9934, 11.1684)])
sketch31.addConstraint([
    Sketcher.Constraint("Vertical", 0),
    Sketcher.Constraint("Horizontal", 1),
    Sketcher.Constraint("Vertical", 2),
    Sketcher.Constraint("Horizontal", 3),
    Sketcher.Constraint("DistanceX", 1, 1, 1, 2, Q("2.9968 mm")),
    Sketcher.Constraint("DistanceY", 0, 2, 0, 1, Q("1.9914 mm")),
    Sketcher.Constraint("DistanceX", -1, 1, 0, 2, Q("21.9966 mm")),
    Sketcher.Constraint("DistanceY", -1, 1, 0, 2, Q("9.177 mm")),
])
pad31 = doc.addObject("PartDesign::Pad", "Pad030")
body31.addObject(pad31)
pad31.Profile = sketch31
pad31.setExpression("Length", "Params.pad31_length")
body32 = doc.addObject("PartDesign::Body", "Body031")

sketch32 = doc.addObject("Sketcher::SketchObject", "Sketch031")
body32.addObject(sketch32)
sketch32.AttachmentSupport = (doc.getObject("XY_Plane031"), [""])
sketch32.MapMode = "FlatFace"
sketch32.AttachmentOffset = App.Placement(V(0, 0, 1.6), App.Rotation())
add_polygon(sketch32, [(30.2516, 11.143), (30.2516, 9.1516), (33.2484, 9.1516), (33.2484, 11.143)])
sketch32.addConstraint([
    Sketcher.Constraint("Vertical", 0),
    Sketcher.Constraint("Horizontal", 1),
    Sketcher.Constraint("Vertical", 2),
    Sketcher.Constraint("Horizontal", 3),
    Sketcher.Constraint("DistanceX", 1, 1, 1, 2, Q("2.9968 mm")),
    Sketcher.Constraint("DistanceY", 0, 2, 0, 1, Q("1.9914 mm")),
    Sketcher.Constraint("DistanceX", -1, 1, 0, 2, Q("30.2516 mm")),
    Sketcher.Constraint("DistanceY", -1, 1, 0, 2, Q("9.1516 mm")),
])
pad32 = doc.addObject("PartDesign::Pad", "Pad031")
body32.addObject(pad32)
pad32.Profile = sketch32
pad32.setExpression("Length", "Params.pad32_length")
body33 = doc.addObject("PartDesign::Body", "Body032")

sketch33 = doc.addObject("Sketcher::SketchObject", "Sketch032")
body33.addObject(sketch33)
sketch33.AttachmentSupport = (doc.getObject("XY_Plane032"), [""])
sketch33.MapMode = "FlatFace"
sketch33.AttachmentOffset = App.Placement(V(0, 0, 1.6), App.Rotation())
add_polygon(sketch33, [(30.2516, 8.984), (30.2516, 6.9926), (33.2484, 6.9926), (33.2484, 8.984)])
sketch33.addConstraint([
    Sketcher.Constraint("Vertical", 0),
    Sketcher.Constraint("Horizontal", 1),
    Sketcher.Constraint("Vertical", 2),
    Sketcher.Constraint("Horizontal", 3),
    Sketcher.Constraint("DistanceX", 1, 1, 1, 2, Q("2.9968 mm")),
    Sketcher.Constraint("DistanceY", 0, 2, 0, 1, Q("1.9914 mm")),
    Sketcher.Constraint("DistanceX", -1, 1, 0, 2, Q("30.2516 mm")),
    Sketcher.Constraint("DistanceY", -1, 1, 0, 2, Q("6.9926 mm")),
])
pad33 = doc.addObject("PartDesign::Pad", "Pad032")
body33.addObject(pad33)
pad33.Profile = sketch33
pad33.setExpression("Length", "Params.pad33_length")
body34 = doc.addObject("PartDesign::Body", "Body033")

sketch34 = doc.addObject("Sketcher::SketchObject", "Sketch033")
body34.addObject(sketch34)
sketch34.AttachmentSupport = (doc.getObject("XY_Plane033"), [""])
sketch34.MapMode = "FlatFace"
sketch34.AttachmentOffset = App.Placement(V(0, 0, 1.6), App.Rotation())
add_polygon(sketch34, [(5.9184, 5.5116), (5.9184, 5.3084), (9.22, 5.3084), (9.22, 5.5116)])
sketch34.addConstraint([
    Sketcher.Constraint("Vertical", 0),
    Sketcher.Constraint("Horizontal", 1),
    Sketcher.Constraint("Vertical", 2),
    Sketcher.Constraint("Horizontal", 3),
    Sketcher.Constraint("DistanceY", 0, 2, 0, 1, Q("0.008 in")),
    Sketcher.Constraint("DistanceX", 1, 1, 1, 2, Q("3.3016 mm")),
    Sketcher.Constraint("DistanceX", -1, 1, 0, 2, Q("5.9184 mm")),
    Sketcher.Constraint("DistanceY", -1, 1, 0, 2, Q("5.3084 mm")),
])
sketch34.setExpression("Constraints[8]", "Params.sketch34_height")
pad34 = doc.addObject("PartDesign::Pad", "Pad033")
body34.addObject(pad34)
pad34.Profile = sketch34
pad34.setExpression("Length", "Params.pad34_length")
body35 = doc.addObject("PartDesign::Body", "Body034")

sketch35 = doc.addObject("Sketcher::SketchObject", "Sketch034")
body35.addObject(sketch35)
sketch35.AttachmentSupport = (doc.getObject("XY_Plane034"), [""])
sketch35.MapMode = "FlatFace"
sketch35.AttachmentOffset = App.Placement(V(0, 0, 1.6), App.Rotation())
add_polygon(sketch35, [(-0.3175, 5.3975), (-0.3175, -0.3175), (5.3975, -0.3175), (5.3975, 5.3975)])
sketch35.addConstraint([
    Sketcher.Constraint("Vertical", 0),
    Sketcher.Constraint("Horizontal", 1),
    Sketcher.Constraint("Vertical", 2),
    Sketcher.Constraint("Horizontal", 3),
    Sketcher.Constraint("Equal", 3, 0),
    Sketcher.Constraint("DistanceX", 1, 1, 1, 2, Q("0.225 in")),
    Sketcher.Constraint("DistanceX", 0, 2, -1, 1, Q("0.0125 in")),
    Sketcher.Constraint("DistanceY", 0, 2, -1, 1, Q("0.0125 in")),
])
sketch35.setExpression("Constraints[9]", "Params.sketch35_width")
pad35 = doc.addObject("PartDesign::Pad", "Pad034")
body35.addObject(pad35)
pad35.Profile = sketch35
pad35.setExpression("Length", "Params.pad35_length")
body36 = doc.addObject("PartDesign::Body", "Body035")

sketch36 = doc.addObject("Sketcher::SketchObject", "Sketch035")
body36.addObject(sketch36)
sketch36.AttachmentSupport = (doc.getObject("XY_Plane035"), [""])
sketch36.MapMode = "FlatFace"
sketch36.AttachmentOffset = App.Placement(V(0, 0, 1.6), App.Rotation())
add_polygon(sketch36, [(-0.3175, 47.3075), (-0.3175, 41.5925), (5.3975, 41.5925), (5.3975, 47.3075)])
sketch36.addConstraint([
    Sketcher.Constraint("Vertical", 0),
    Sketcher.Constraint("Horizontal", 1),
    Sketcher.Constraint("Vertical", 2),
    Sketcher.Constraint("Horizontal", 3),
    Sketcher.Constraint("Equal", 3, 0),
    Sketcher.Constraint("DistanceX", 1, 1, 1, 2, Q("0.225 in")),
    Sketcher.Constraint("DistanceX", 0, 2, -1, 1, Q("0.0125 in")),
    Sketcher.Constraint("DistanceY", -1, 1, 0, 2, Q("1.6375 in")),
])
sketch36.setExpression("Constraints[9]", "Params.sketch36_width")
pad36 = doc.addObject("PartDesign::Pad", "Pad035")
body36.addObject(pad36)
pad36.Profile = sketch36
pad36.setExpression("Length", "Params.pad36_length")
body37 = doc.addObject("PartDesign::Body", "Body036")

sketch37 = doc.addObject("Sketcher::SketchObject", "Sketch036")
body37.addObject(sketch37)
sketch37.AttachmentSupport = (doc.getObject("XY_Plane036"), [""])
sketch37.MapMode = "FlatFace"
sketch37.AttachmentOffset = App.Placement(V(0, 0, 1.6), App.Rotation())
add_polygon(sketch37, [(41.5925, 47.3075), (41.5925, 41.5925), (47.3075, 41.5925), (47.3075, 47.3075)])
sketch37.addConstraint([
    Sketcher.Constraint("Vertical", 0),
    Sketcher.Constraint("Horizontal", 1),
    Sketcher.Constraint("Vertical", 2),
    Sketcher.Constraint("Horizontal", 3),
    Sketcher.Constraint("Equal", 3, 0),
    Sketcher.Constraint("DistanceX", 1, 1, 1, 2, Q("0.225 in")),
    Sketcher.Constraint("DistanceX", -1, 1, 0, 2, Q("1.6375 in")),
    Sketcher.Constraint("DistanceY", -1, 1, 0, 2, Q("1.6375 in")),
])
sketch37.setExpression("Constraints[9]", "Params.sketch37_width")
pad37 = doc.addObject("PartDesign::Pad", "Pad036")
body37.addObject(pad37)
pad37.Profile = sketch37
pad37.setExpression("Length", "Params.pad37_length")
body38 = doc.addObject("PartDesign::Body", "Body037")

sketch38 = doc.addObject("Sketcher::SketchObject", "Sketch037")
body38.addObject(sketch38)
sketch38.AttachmentSupport = (doc.getObject("XY_Plane037"), [""])
sketch38.MapMode = "FlatFace"
sketch38.AttachmentOffset = App.Placement(V(0, 0, 1.6), App.Rotation())
add_polygon(sketch38, [(41.5925, 5.3975), (41.5925, -0.3175), (47.3075, -0.3175), (47.3075, 5.3975)])
sketch38.addConstraint([
    Sketcher.Constraint("Vertical", 0),
    Sketcher.Constraint("Horizontal", 1),
    Sketcher.Constraint("Vertical", 2),
    Sketcher.Constraint("Horizontal", 3),
    Sketcher.Constraint("Equal", 3, 0),
    Sketcher.Constraint("DistanceX", 1, 1, 1, 2, Q("0.225 in")),
    Sketcher.Constraint("DistanceX", -1, 1, 0, 2, Q("1.6375 in")),
    Sketcher.Constraint("DistanceY", 0, 2, -1, 1, Q("0.0125 in")),
])
sketch38.setExpression("Constraints[9]", "Params.sketch38_width")
pad38 = doc.addObject("PartDesign::Pad", "Pad037")
body38.addObject(pad38)
pad38.Profile = sketch38
pad38.setExpression("Length", "Params.pad38_length")
body39 = doc.addObject("PartDesign::Body", "Body038")

sketch39 = doc.addObject("Sketcher::SketchObject", "Sketch038")
body39.addObject(sketch39)
sketch39.AttachmentSupport = (doc.getObject("XY_Plane038"), [""])
sketch39.MapMode = "FlatFace"
sketch39.AttachmentOffset = App.Placement(V(0, 0, 1.6), App.Rotation())
add_polygon(sketch39, [(18.7565, 16.0335), (18.7565, 11.9065), (21.82, 11.9065), (21.82, 16.0335)])
sketch39.addConstraint([
    Sketcher.Constraint("Vertical", 0),
    Sketcher.Constraint("Horizontal", 1),
    Sketcher.Constraint("Vertical", 2),
    Sketcher.Constraint("Horizontal", 3),
    Sketcher.Constraint("DistanceX", 1, 1, 1, 2, Q("3.0635 mm")),
    Sketcher.Constraint("DistanceY", 0, 2, 0, 1, Q("4.127 mm")),
    Sketcher.Constraint("DistanceX", -1, 1, 0, 2, Q("18.7565 mm")),
    Sketcher.Constraint("DistanceY", -1, 1, 0, 2, Q("11.9065 mm")),
])
pad39 = doc.addObject("PartDesign::Pad", "Pad038")
body39.addObject(pad39)
pad39.Profile = sketch39
pad39.setExpression("Length", "Params.pad39_length")

doc.recompute()
